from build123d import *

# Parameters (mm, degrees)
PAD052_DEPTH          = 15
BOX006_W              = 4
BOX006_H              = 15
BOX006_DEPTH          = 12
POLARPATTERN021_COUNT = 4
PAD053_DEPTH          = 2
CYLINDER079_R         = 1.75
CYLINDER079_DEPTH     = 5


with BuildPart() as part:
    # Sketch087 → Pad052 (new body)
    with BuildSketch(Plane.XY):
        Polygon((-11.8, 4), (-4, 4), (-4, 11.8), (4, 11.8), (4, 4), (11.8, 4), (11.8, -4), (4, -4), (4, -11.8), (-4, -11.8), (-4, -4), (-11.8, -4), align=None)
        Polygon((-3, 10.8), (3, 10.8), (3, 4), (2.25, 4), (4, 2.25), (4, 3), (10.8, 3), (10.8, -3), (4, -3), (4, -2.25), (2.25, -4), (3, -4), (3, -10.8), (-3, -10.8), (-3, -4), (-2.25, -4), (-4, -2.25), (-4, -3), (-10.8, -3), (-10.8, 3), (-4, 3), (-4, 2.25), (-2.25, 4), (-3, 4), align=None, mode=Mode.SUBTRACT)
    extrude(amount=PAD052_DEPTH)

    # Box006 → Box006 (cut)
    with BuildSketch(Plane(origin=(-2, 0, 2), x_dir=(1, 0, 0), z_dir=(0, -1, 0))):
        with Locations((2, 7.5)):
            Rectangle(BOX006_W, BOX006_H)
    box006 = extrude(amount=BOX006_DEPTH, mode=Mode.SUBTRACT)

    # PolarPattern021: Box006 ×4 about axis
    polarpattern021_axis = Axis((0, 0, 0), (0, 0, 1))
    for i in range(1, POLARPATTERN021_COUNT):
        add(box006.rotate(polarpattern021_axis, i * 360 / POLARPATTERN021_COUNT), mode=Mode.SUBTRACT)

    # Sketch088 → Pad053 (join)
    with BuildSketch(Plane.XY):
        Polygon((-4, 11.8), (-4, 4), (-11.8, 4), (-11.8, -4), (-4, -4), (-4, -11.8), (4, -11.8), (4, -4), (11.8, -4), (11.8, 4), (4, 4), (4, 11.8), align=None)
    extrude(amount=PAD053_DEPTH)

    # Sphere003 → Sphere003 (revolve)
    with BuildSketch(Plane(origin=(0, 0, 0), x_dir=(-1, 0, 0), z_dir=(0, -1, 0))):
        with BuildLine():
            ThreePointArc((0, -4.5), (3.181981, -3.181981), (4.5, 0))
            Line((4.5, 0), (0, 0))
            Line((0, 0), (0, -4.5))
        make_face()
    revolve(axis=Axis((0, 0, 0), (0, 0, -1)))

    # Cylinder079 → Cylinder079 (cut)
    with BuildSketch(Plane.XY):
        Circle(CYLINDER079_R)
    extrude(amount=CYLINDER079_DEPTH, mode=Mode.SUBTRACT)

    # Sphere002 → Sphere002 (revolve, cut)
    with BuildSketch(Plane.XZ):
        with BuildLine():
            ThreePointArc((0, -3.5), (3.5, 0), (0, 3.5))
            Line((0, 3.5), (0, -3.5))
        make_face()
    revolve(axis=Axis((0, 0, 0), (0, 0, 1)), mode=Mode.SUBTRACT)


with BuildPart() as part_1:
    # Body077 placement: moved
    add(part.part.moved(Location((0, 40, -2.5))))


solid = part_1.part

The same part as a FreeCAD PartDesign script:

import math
import FreeCAD as App
import Part
import Sketcher


def add_polygon(sketch, points):
    """Adds a closed chain of lines whose ends are joined by coincident constraints."""
    first, n = sketch.GeometryCount, len(points)
    for a, b in zip(points, points[1:] + points[:1]):
        sketch.addGeometry(Part.LineSegment(App.Vector(*a, 0), App.Vector(*b, 0)), False)
    for i in range(n):
        sketch.addConstraint(Sketcher.Constraint("Coincident", first + i, 2, first + (i + 1) % n, 1))

doc = App.newDocument("Part")
body = doc.addObject("PartDesign::Body", "Body")

# Sketch on XY plane
sketch1 = body.newObject("Sketcher::SketchObject", "Sketch")
sketch1.AttachmentSupport = (doc.getObject("XY_Plane"), [""])
sketch1.MapMode = "FlatFace"
add_polygon(sketch1, [(-4, 4), (-11.8, 4), (-11.8, -4), (-4, -4), (-4, -11.8), (4, -11.8), (4, -4), (11.8, -4), (11.8, 4), (4, 4), (4, 11.8), (-4, 11.8)])  # lines 0-11
add_polygon(sketch1, [(-3, 10.8), (3, 10.8), (3, 4), (2.2, 4), (4, 2.2), (4, 3), (10.8, 3), (10.8, -3), (4, -3), (4, -2.2), (2.2, -4), (3, -4), (3, -10.8), (-3, -10.8), (-3, -4), (-2.2, -4), (-4, -2.2), (-4, -3), (-10.8, -3), (-10.8, 3), (-4, 3), (-4, 2.2), (-2.2, 4), (-3, 4)])  # lines 12-35
sketch1.addConstraint([
    Sketcher.Constraint("Horizontal", 0),
    Sketcher.Constraint("Vertical", 1),
    Sketcher.Constraint("Horizontal", 2),
    Sketcher.Constraint("Vertical", 3),
    Sketcher.Constraint("Horizontal", 4),
    Sketcher.Constraint("Vertical", 5),
    Sketcher.Constraint("Horizontal", 6),
    Sketcher.Constraint("Vertical", 7),
    Sketcher.Constraint("Horizontal", 8),
    Sketcher.Constraint("Vertical", 9),
    Sketcher.Constraint("Horizontal", 10),
    Sketcher.Constraint("Vertical", 11),
    Sketcher.Constraint("Horizontal", 12),
    Sketcher.Constraint("Vertical", 13),
    Sketcher.Constraint("Horizontal", 14),
    Sketcher.Constraint("Vertical", 16),
    Sketcher.Constraint("Horizontal", 17),
    Sketcher.Constraint("Vertical", 18),
    Sketcher.Constraint("Horizontal", 19),
    Sketcher.Constraint("Vertical", 20),
    Sketcher.Constraint("Horizontal", 22),
    Sketcher.Constraint("Vertical", 23),
    Sketcher.Constraint("Horizontal", 24),
    Sketcher.Constraint("Vertical", 25),
    Sketcher.Constraint("Horizontal", 26),
    Sketcher.Constraint("Vertical", 28),
    Sketcher.Constraint("Horizontal", 29),
    Sketcher.Constraint("Vertical", 30),
    Sketcher.Constraint("Horizontal", 31),
    Sketcher.Constraint("Vertical", 32),
    Sketcher.Constraint("Horizontal", 34),
    Sketcher.Constraint("Vertical", 35),
    Sketcher.Constraint("Symmetric", 0, 2, 6, 2, -1, 1),
    Sketcher.Constraint("Symmetric", 2, 2, 8, 2, -1, 1),
    Sketcher.Constraint("Symmetric", 4, 2, 10, 2, -1, 1),
    Sketcher.Constraint("Symmetric", 12, 2, 24, 2, -1, 1),
    Sketcher.Constraint("Symmetric", 14, 2, 26, 2, -1, 1),
    Sketcher.Constraint("Symmetric", 15, 2, 27, 2, -1, 1),
    Sketcher.Constraint("Symmetric", 17, 2, 29, 2, -1, 1),
    Sketcher.Constraint("Symmetric", 19, 2, 31, 2, -1, 1),
    Sketcher.Constraint("Symmetric", 21, 2, 33, 2, -1, 1),
    Sketcher.Constraint("Symmetric", 2, 2, 5, 2, -2),
    Sketcher.Constraint("Symmetric", 22, 2, 25, 2, -2),
    Sketcher.Constraint("Symmetric", 20, 2, 27, 2, -2),
    Sketcher.Constraint("Perpendicular", 15, 21),
    Sketcher.Constraint("Perpendicular", 27, 33),
    Sketcher.Constraint("Horizontal", 11, 2, 13, 2),
    Sketcher.Constraint("Horizontal", 19, 2, 28, 2),
    Sketcher.Constraint("Vertical", 9, 2, 15, 2),
    Sketcher.Constraint("Vertical", 14, 2, 21, 2),
    Sketcher.Constraint("Vertical", 25, 2, 34, 2),
    Sketcher.Constraint("Equal", 10, 1),
    Sketcher.Constraint("Equal", 8, 3),
    Sketcher.Constraint("Equal", 31, 13),
    Sketcher.Constraint("Equal", 34, 16),
    Sketcher.Constraint("DistanceX", 4, 1, 4, 2, 8.0),
    Sketcher.Constraint("DistanceX", 12, 1, 12, 2, 6.0),
    Sketcher.Constraint("DistanceX", 0, 2, 0, 1, 7.8),
    Sketcher.Constraint("DistanceX", 17, 1, 17, 2, 6.8),
    Sketcher.Constraint("DistanceX", 14, 2, 14, 1, 0.75),
])
pad1 = body.newObject("PartDesign::Pad", "Pad")
pad1.Profile = sketch1
pad1.Length = 15

# Sketch on XZ plane
sketch2 = body.newObject("Sketcher::SketchObject", "Sketch001")
sketch2.AttachmentSupport = (doc.getObject("XZ_Plane"), [""])
sketch2.MapMode = "FlatFace"
add_polygon(sketch2, [(-2, 17), (-2, 2), (2, 2), (2, 17)])  # lines 0-3
sketch2.addConstraint([
    Sketcher.Constraint("Vertical", 0),
    Sketcher.Constraint("Horizontal", 1),
    Sketcher.Constraint("Vertical", 2),
    Sketcher.Constraint("Horizontal", 3),
    Sketcher.Constraint("DistanceX", 1, 1, 1, 2, 4.0),
    Sketcher.Constraint("DistanceY", 0, 2, 0, 1, 15.0),
    Sketcher.Constraint("DistanceX", 0, 2, -1, 1, 2.0),
    Sketcher.Constraint("DistanceY", -1, 1, 0, 2, 2.0),
])
pocket1 = body.newObject("PartDesign::Pocket", "Pocket")
pocket1.Profile = sketch2
pocket1.Length = 12
pocket1.Reversed = True
doc.recompute()

polarpattern = body.newObject("PartDesign::PolarPattern", "PolarPattern")
polarpattern.Originals = [pocket1]
polarpattern.Axis = (doc.getObject("Z_Axis"), [""])
polarpattern.Angle = 360
polarpattern.Occurrences = 4
body.Tip = polarpattern

# Sketch on XY plane
sketch3 = body.newObject("Sketcher::SketchObject", "Sketch002")
sketch3.AttachmentSupport = (doc.getObject("XY_Plane"), [""])
sketch3.MapMode = "FlatFace"
add_polygon(sketch3, [(-4, 12), (-4, 4), (-12, 4), (-12, -4), (-4, -4), (-4, -12), (4, -12), (4, -4), (12, -4), (12, 4), (4, 4), (4, 12)])  # lines 0-11
sketch3.addConstraint([
    Sketcher.Constraint("Vertical", 0),
    Sketcher.Constraint("Horizontal", 1),
    Sketcher.Constraint("Vertical", 2),
    Sketcher.Constraint("Horizontal", 3),
    Sketcher.Constraint("Vertical", 4),
    Sketcher.Constraint("Horizontal", 5),
    Sketcher.Constraint("Vertical", 6),
    Sketcher.Constraint("Horizontal", 7),
    Sketcher.Constraint("Vertical", 8),
    Sketcher.Constraint("Horizontal", 9),
    Sketcher.Constraint("Vertical", 10),
    Sketcher.Constraint("Horizontal", 11),
    Sketcher.Constraint("Symmetric", 0, 2, 6, 2, -1, 1),
    Sketcher.Constraint("Symmetric", 2, 2, 8, 2, -1, 1),
    Sketcher.Constraint("Symmetric", 4, 2, 10, 2, -1, 1),
    Sketcher.Constraint("Symmetric", 3, 2, 6, 2, -2),
    Sketcher.Constraint("Equal", 9, 0),
    Sketcher.Constraint("Equal", 11, 2),
    Sketcher.Constraint("DistanceX", 5, 1, 5, 2, 8.0),
    Sketcher.Constraint("DistanceX", 1, 2, 1, 1, 7.8),
])
pad2 = body.newObject("PartDesign::Pad", "Pad001")
pad2.Profile = sketch3
pad2.Length = 2

# Sketch on XZ plane
sketch4 = body.newObject("Sketcher::SketchObject", "Sketch003")
sketch4.AttachmentSupport = (doc.getObject("XZ_Plane"), [""])
sketch4.MapMode = "FlatFace"
sketch4.addGeometry([
    Part.ArcOfCircle(Part.Circle(App.Vector(0, 0, 0), App.Vector(0, 0, 1), 4.5), math.radians(90), math.radians(180)),
    Part.LineSegment(App.Vector(-4.5, 0, 0), App.Vector(0, 0, 0)),
    Part.LineSegment(App.Vector(0, 0, 0), App.Vector(0, 4.5, 0)),
], False)
sketch4.addConstraint([
    Sketcher.Constraint("Coincident", 0, 2, 1, 1),
    Sketcher.Constraint("Coincident", 1, 2, 2, 1),
    Sketcher.Constraint("Coincident", 2, 2, 0, 1),
    Sketcher.Constraint("Horizontal", 1),
    Sketcher.Constraint("Vertical", 2),
    Sketcher.Constraint("Coincident", 0, 3, -1, 1),
    Sketcher.Constraint("Coincident", 1, 2, -1, 1),
    Sketcher.Constraint("Radius", 0, 4.499998),
])
revolution = body.newObject("PartDesign::Revolution", "Revolution")
revolution.Profile = sketch4
revolution.ReferenceAxis = (sketch4, ["V_Axis"])
revolution.Angle = 360

# Sketch on XY plane
sketch5 = body.newObject("Sketcher::SketchObject", "Sketch004")
sketch5.AttachmentSupport = (doc.getObject("XY_Plane"), [""])
sketch5.MapMode = "FlatFace"
sketch5.addGeometry(Part.Circle(App.Vector(0, 0, 0), App.Vector(0, 0, 1), 1.8), False)
sketch5.addConstraint([
    Sketcher.Constraint("Coincident", 0, 3, -1, 1),
    Sketcher.Constraint("Diameter", 0, 3.5),
])
pocket2 = body.newObject("PartDesign::Pocket", "Pocket001")
pocket2.Profile = sketch5
pocket2.Length = 5
pocket2.Reversed = True

# Sketch on XZ plane
sketch6 = body.newObject("Sketcher::SketchObject", "Sketch005")
sketch6.AttachmentSupport = (doc.getObject("XZ_Plane"), [""])
sketch6.MapMode = "FlatFace"
sketch6.addGeometry([
    Part.ArcOfCircle(Part.Circle(App.Vector(0, 0, 0), App.Vector(0, 0, 1), 3.5), math.radians(-90), math.radians(90)),
    Part.LineSegment(App.Vector(0, 3.5, 0), App.Vector(0, -3.5, 0)),
], False)
sketch6.addConstraint([
    Sketcher.Constraint("Coincident", 0, 1, 1, 2),
    Sketcher.Constraint("Coincident", 1, 1, 0, 2),
    Sketcher.Constraint("Vertical", 1),
    Sketcher.Constraint("Coincident", 0, 3, -1, 1),
    Sketcher.Constraint("PointOnObject", 0, 1, -2),
    Sketcher.Constraint("Radius", 0, 3.5),
])
groove = body.newObject("PartDesign::Groove", "Groove")
groove.Profile = sketch6
groove.ReferenceAxis = (sketch6, ["V_Axis"])
groove.Angle = 360
body2 = doc.addObject("PartDesign::Body", "Body001")
doc.recompute()

body.Placement = App.Placement(App.Vector(0, 40, -2.5), App.Rotation(App.Vector(0, 0, 1), 0))
boolean = body2.newObject("PartDesign::Boolean", "Boolean")
boolean.Type = "Fuse"
boolean.addObjects([body])

doc.recompute()
